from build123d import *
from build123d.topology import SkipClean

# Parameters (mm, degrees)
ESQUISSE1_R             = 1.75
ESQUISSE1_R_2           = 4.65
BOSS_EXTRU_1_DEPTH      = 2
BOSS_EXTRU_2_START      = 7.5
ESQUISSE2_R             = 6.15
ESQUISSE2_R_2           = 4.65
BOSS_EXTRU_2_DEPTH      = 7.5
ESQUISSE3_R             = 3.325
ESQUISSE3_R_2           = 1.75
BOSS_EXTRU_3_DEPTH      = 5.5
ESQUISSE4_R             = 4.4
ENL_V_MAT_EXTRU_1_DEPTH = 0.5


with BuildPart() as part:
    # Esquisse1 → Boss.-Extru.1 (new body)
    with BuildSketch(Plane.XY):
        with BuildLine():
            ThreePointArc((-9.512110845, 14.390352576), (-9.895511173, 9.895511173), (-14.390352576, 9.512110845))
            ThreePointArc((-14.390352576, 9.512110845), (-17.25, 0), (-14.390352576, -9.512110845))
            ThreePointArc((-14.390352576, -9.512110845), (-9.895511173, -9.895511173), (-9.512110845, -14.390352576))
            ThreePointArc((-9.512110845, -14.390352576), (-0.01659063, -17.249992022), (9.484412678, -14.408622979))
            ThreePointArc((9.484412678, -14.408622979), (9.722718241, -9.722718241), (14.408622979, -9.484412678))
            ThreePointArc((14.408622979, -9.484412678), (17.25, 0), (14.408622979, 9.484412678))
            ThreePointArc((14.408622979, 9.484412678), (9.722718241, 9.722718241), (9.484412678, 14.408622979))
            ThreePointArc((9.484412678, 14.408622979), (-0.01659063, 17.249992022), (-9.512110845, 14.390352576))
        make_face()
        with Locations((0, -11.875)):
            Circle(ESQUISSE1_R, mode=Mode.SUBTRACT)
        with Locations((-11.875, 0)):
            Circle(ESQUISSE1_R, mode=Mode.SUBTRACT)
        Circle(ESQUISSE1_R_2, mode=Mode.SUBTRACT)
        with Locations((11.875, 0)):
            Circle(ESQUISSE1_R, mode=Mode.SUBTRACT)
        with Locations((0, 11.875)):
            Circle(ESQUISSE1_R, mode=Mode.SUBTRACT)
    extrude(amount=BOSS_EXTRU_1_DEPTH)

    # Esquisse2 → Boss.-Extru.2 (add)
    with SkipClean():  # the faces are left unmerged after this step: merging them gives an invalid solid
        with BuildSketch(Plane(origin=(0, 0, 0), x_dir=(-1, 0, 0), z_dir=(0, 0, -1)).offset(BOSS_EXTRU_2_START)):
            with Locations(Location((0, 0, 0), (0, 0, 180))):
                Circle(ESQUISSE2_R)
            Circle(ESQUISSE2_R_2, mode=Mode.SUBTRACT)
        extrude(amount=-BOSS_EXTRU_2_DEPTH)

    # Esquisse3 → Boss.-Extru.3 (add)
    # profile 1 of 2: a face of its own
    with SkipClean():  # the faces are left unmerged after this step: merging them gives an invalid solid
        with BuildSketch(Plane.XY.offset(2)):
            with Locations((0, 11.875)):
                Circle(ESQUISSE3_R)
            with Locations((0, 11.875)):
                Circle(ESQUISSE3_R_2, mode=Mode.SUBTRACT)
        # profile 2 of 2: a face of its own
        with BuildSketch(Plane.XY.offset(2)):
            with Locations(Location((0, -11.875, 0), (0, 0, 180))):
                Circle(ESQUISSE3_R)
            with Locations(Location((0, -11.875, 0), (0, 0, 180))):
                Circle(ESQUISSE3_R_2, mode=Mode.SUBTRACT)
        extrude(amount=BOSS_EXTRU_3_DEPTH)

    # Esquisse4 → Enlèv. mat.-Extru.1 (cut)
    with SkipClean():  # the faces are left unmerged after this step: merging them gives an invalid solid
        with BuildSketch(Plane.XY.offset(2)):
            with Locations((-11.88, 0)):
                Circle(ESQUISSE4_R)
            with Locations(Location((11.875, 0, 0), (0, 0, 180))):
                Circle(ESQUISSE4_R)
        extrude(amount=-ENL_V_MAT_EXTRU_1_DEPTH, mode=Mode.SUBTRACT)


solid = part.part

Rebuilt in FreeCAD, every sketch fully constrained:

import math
import FreeCAD as App
import Part
import Sketcher

doc = App.newDocument("Part")
body = doc.addObject("PartDesign::Body", "Body")

# Sketch on XY plane
sketch1 = body.newObject("Sketcher::SketchObject", "Sketch")
sketch1.AttachmentSupport = (doc.getObject("XY_Plane"), [""])
sketch1.MapMode = "FlatFace"
sketch1.addGeometry([
    Part.ArcOfCircle(Part.Circle(App.Vector(-12.4, 12.4, 0), App.Vector(0, 0, 1), 3.5), math.radians(-125), math.radians(35)),  # 0
    Part.ArcOfCircle(Part.Circle(App.Vector(0, 0, 0), App.Vector(0, 0, 1), 17.2), math.radians(147), math.radians(213)),  # 1
    Part.ArcOfCircle(Part.Circle(App.Vector(-12.4, -12.4, 0), App.Vector(0, 0, 1), 3.5), math.radians(-35), math.radians(125)),  # 2
    Part.ArcOfCircle(Part.Circle(App.Vector(0, 0, 0), App.Vector(0, 0, 1), 17.2), math.radians(-123), math.radians(-57)),  # 3
    Part.ArcOfCircle(Part.Circle(App.Vector(12.2, -12.2, 0), App.Vector(0, 0, 1), 3.5), math.radians(51), math.radians(219)),  # 4
    Part.ArcOfCircle(Part.Circle(App.Vector(0, 0, 0), App.Vector(0, 0, 1), 17.2), math.radians(-33), math.radians(33)),  # 5
    Part.ArcOfCircle(Part.Circle(App.Vector(12.2, 12.2, 0), App.Vector(0, 0, 1), 3.5), math.radians(141), math.radians(309)),  # 6
    Part.ArcOfCircle(Part.Circle(App.Vector(0, 0, 0), App.Vector(0, 0, 1), 17.2), math.radians(57), math.radians(123)),  # 7
    Part.Circle(App.Vector(0, -11.9, 0), App.Vector(0, 0, 1), 1.8),  # 8
    Part.Circle(App.Vector(-11.9, 0, 0), App.Vector(0, 0, 1), 1.8),  # 9
    Part.Circle(App.Vector(0, 0, 0), App.Vector(0, 0, 1), 4.7),  # 10
    Part.Circle(App.Vector(11.9, 0, 0), App.Vector(0, 0, 1), 1.8),  # 11
    Part.Circle(App.Vector(0, 11.9, 0), App.Vector(0, 0, 1), 1.8),  # 12
], False)
sketch1.addConstraint([
    Sketcher.Constraint("Coincident", 0, 1, 1, 1),
    Sketcher.Constraint("Coincident", 1, 2, 2, 2),
    Sketcher.Constraint("Coincident", 2, 1, 3, 1),
    Sketcher.Constraint("Coincident", 3, 2, 4, 2),
    Sketcher.Constraint("Coincident", 4, 1, 5, 1),
    Sketcher.Constraint("Coincident", 5, 2, 6, 2),
    Sketcher.Constraint("Coincident", 6, 1, 7, 1),
    Sketcher.Constraint("Coincident", 7, 2, 0, 2),
    Sketcher.Constraint("Coincident", 1, 3, -1, 1),
    Sketcher.Constraint("Coincident", 3, 3, -1, 1),
    Sketcher.Constraint("Coincident", 5, 3, -1, 1),
    Sketcher.Constraint("Coincident", 7, 3, -1, 1),
    Sketcher.Constraint("Coincident", 10, 3, -1, 1),
    Sketcher.Constraint("Equal", 0, 2),
    Sketcher.Constraint("Equal", 1, 3),
    Sketcher.Constraint("Equal", 2, 4),
    Sketcher.Constraint("Equal", 3, 5),
    Sketcher.Constraint("Equal", 4, 6),
    Sketcher.Constraint("Equal", 5, 7),
    Sketcher.Constraint("Equal", 8, 9),
    Sketcher.Constraint("Equal", 9, 11),
    Sketcher.Constraint("Equal", 11, 12),
    Sketcher.Constraint("Symmetric", 9, 3, 11, 3, -1, 1),
    Sketcher.Constraint("Symmetric", 8, 3, 12, 3, -1, 1),
    Sketcher.Constraint("Symmetric", 0, 3, 2, 3, -1),
    Sketcher.Constraint("Symmetric", 4, 3, 6, 3, -1),
    Sketcher.Constraint("PointOnObject", 8, 3, -2),
    Sketcher.Constraint("PointOnObject", 9, 3, -1),
    Sketcher.Constraint("Diameter", 8, 3.5),
    Sketcher.Constraint("Diameter", 10, 9.3),
    Sketcher.Constraint("Radius", 0, 3.5),
    Sketcher.Constraint("Radius", 1, 17.25),
    Sketcher.Constraint("DistanceY", 8, 3, -1, 1, 11.875),
    Sketcher.Constraint("DistanceX", 9, 3, -1, 1, 11.875),
    Sketcher.Constraint("DistanceX", -1, 1, 4, 3, 12.197592),
    Sketcher.Constraint("DistanceY", 4, 3, -1, 1, 12.197592),
    Sketcher.Constraint("DistanceY", -1, 1, 0, 1, 9.512111),
    Sketcher.Constraint("DistanceX", 2, 1, -1, 1, 9.512111),
])
pad1 = body.newObject("PartDesign::Pad", "Pad")
pad1.Profile = sketch1
pad1.Length = 2

# Sketch on XY plane
sketch2 = body.newObject("Sketcher::SketchObject", "Sketch001")
sketch2.AttachmentSupport = (doc.getObject("XY_Plane"), [""])
sketch2.MapMode = "FlatFace"
sketch2.AttachmentOffset = App.Placement(App.Vector(0, 0, -7.5), App.Rotation())
sketch2.addGeometry([
    Part.Circle(App.Vector(0, 0, 0), App.Vector(0, 0, 1), 6.2),
    Part.Circle(App.Vector(0, 0, 0), App.Vector(0, 0, 1), 4.7),
], False)
sketch2.addConstraint([
    Sketcher.Constraint("Coincident", 0, 3, -1, 1),
    Sketcher.Constraint("Coincident", 1, 3, -1, 1),
    Sketcher.Constraint("Diameter", 0, 12.3),
    Sketcher.Constraint("Diameter", 1, 9.3),
])
pad2 = body.newObject("PartDesign::Pad", "Pad001")
pad2.Profile = sketch2
pad2.Length = 7.5

# Sketch on XY plane
sketch3 = body.newObject("Sketcher::SketchObject", "Sketch002")
sketch3.AttachmentSupport = (doc.getObject("XY_Plane"), [""])
sketch3.MapMode = "FlatFace"
sketch3.AttachmentOffset = App.Placement(App.Vector(0, 0, 2), App.Rotation())
sketch3.addGeometry([
    Part.Circle(App.Vector(0, 11.9, 0), App.Vector(0, 0, 1), 3.3),
    Part.Circle(App.Vector(0, 11.9, 0), App.Vector(0, 0, 1), 1.8),
    Part.Circle(App.Vector(0, -11.9, 0), App.Vector(0, 0, 1), 3.3),
    Part.Circle(App.Vector(0, -11.9, 0), App.Vector(0, 0, 1), 1.8),
], False)
sketch3.addConstraint([
    Sketcher.Constraint("Coincident", 1, 3, 0, 3),
    Sketcher.Constraint("Coincident", 3, 3, 2, 3),
    Sketcher.Constraint("Equal", 0, 2),
    Sketcher.Constraint("Equal", 1, 3),
    Sketcher.Constraint("Symmetric", 0, 3, 2, 3, -1, 1),
    Sketcher.Constraint("PointOnObject", 0, 3, -2),
    Sketcher.Constraint("Diameter", 1, 3.5),
    Sketcher.Constraint("Diameter", 0, 6.65),
    Sketcher.Constraint("DistanceY", 2, 3, 0, 3, 23.75),
])
pad3 = body.newObject("PartDesign::Pad", "Pad002")
pad3.Profile = sketch3
pad3.Length = 5.5

# Sketch on XY plane
sketch4 = body.newObject("Sketcher::SketchObject", "Sketch003")
sketch4.AttachmentSupport = (doc.getObject("XY_Plane"), [""])
sketch4.MapMode = "FlatFace"
sketch4.AttachmentOffset = App.Placement(App.Vector(0, 0, 2), App.Rotation())
sketch4.addGeometry([
    Part.Circle(App.Vector(-11.9, 0, 0), App.Vector(0, 0, 1), 4.4),
    Part.Circle(App.Vector(11.9, 0, 0), App.Vector(0, 0, 1), 4.4),
], False)
sketch4.addConstraint([
    Sketcher.Constraint("Equal", 0, 1),
    Sketcher.Constraint("PointOnObject", 0, 3, -1),
    Sketcher.Constraint("PointOnObject", 1, 3, -1),
    Sketcher.Constraint("Diameter", 0, 8.8),
    Sketcher.Constraint("DistanceX", 0, 3, -1, 1, 11.88),
    Sketcher.Constraint("DistanceX", -1, 1, 1, 3, 11.875),
])
pocket1 = body.newObject("PartDesign::Pocket", "Pocket")
pocket1.Profile = sketch4
pocket1.Length = 0.5

doc.recompute()
